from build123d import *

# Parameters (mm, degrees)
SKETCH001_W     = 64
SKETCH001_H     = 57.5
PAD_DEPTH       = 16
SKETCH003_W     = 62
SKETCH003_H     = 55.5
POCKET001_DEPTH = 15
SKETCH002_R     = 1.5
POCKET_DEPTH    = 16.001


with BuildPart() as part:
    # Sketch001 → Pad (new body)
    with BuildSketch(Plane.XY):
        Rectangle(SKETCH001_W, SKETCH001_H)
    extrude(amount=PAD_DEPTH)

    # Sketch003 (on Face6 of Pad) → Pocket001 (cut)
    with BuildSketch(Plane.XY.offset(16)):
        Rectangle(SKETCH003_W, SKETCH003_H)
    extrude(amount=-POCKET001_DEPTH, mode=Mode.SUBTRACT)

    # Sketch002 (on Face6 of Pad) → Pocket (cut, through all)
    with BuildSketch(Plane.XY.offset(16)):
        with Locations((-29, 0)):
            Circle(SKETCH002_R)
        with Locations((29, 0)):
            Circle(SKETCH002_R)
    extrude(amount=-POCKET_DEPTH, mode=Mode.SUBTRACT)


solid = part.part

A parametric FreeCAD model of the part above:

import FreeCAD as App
import Part
import Sketcher
Q = App.Units.Quantity


def add_polygon(sketch, points):
    """Adds a closed chain of lines whose ends are joined by coincident constraints."""
    first, n = sketch.GeometryCount, len(points)
    for a, b in zip(points, points[1:] + points[:1]):
        sketch.addGeometry(Part.LineSegment(App.Vector(*a, 0), App.Vector(*b, 0)), False)
    for i in range(n):
        sketch.addConstraint(Sketcher.Constraint("Coincident", first + i, 2, first + (i + 1) % n, 1))

doc = App.newDocument("Part")
body = doc.addObject("PartDesign::Body", "Body")

# Sketch on XY plane
sketch1 = body.newObject("Sketcher::SketchObject", "Sketch")
sketch1.AttachmentSupport = (doc.getObject("XY_Plane"), [""])
sketch1.MapMode = "FlatFace"
add_polygon(sketch1, [(-32, 29), (-32, -29), (32, -29), (32, 29)])  # lines 0-3
sketch1.addConstraint(Sketcher.Constraint("Vertical", 0))
sketch1.addConstraint(Sketcher.Constraint("Horizontal", 1))
sketch1.addConstraint(Sketcher.Constraint("Vertical", 2))
sketch1.addConstraint(Sketcher.Constraint("Horizontal", 3))
sketch1.addConstraint(Sketcher.Constraint("Symmetric", 0, 2, 2, 2, -1, 1))
sketch1.addConstraint(Sketcher.Constraint("DistanceX", 1, 1, 1, 2, Q("64 mm")))
sketch1.addConstraint(Sketcher.Constraint("DistanceY", 0, 2, 0, 1, Q("57.5 mm")))
pad1 = body.newObject("PartDesign::Pad", "Pad")
pad1.Profile = sketch1
pad1.Length = 16

# Sketch on XY plane
sketch2 = body.newObject("Sketcher::SketchObject", "Sketch001")
sketch2.AttachmentSupport = (doc.getObject("XY_Plane"), [""])
sketch2.MapMode = "FlatFace"
sketch2.AttachmentOffset = App.Placement(App.Vector(0, 0, 16), App.Rotation())
add_polygon(sketch2, [(-31, 28), (-31, -28), (31, -28), (31, 28)])  # lines 0-3
sketch2.addConstraint(Sketcher.Constraint("Vertical", 0))
sketch2.addConstraint(Sketcher.Constraint("Horizontal", 1))
sketch2.addConstraint(Sketcher.Constraint("Vertical", 2))
sketch2.addConstraint(Sketcher.Constraint("Horizontal", 3))
sketch2.addConstraint(Sketcher.Constraint("Symmetric", 0, 2, 2, 2, -1, 1))
sketch2.addConstraint(Sketcher.Constraint("DistanceX", 1, 1, 1, 2, Q("62 mm")))
sketch2.addConstraint(Sketcher.Constraint("DistanceY", 0, 2, 0, 1, Q("55.5 mm")))
pocket1 = body.newObject("PartDesign::Pocket", "Pocket")
pocket1.Profile = sketch2
pocket1.Length = 15

# Sketch on XY plane
sketch3 = body.newObject("Sketcher::SketchObject", "Sketch002")
sketch3.AttachmentSupport = (doc.getObject("XY_Plane"), [""])
sketch3.MapMode = "FlatFace"
sketch3.AttachmentOffset = App.Placement(App.Vector(0, 0, 16), App.Rotation())
sketch3.addGeometry(Part.Circle(App.Vector(-29, 0, 0), App.Vector(0, 0, 1), 1.5), False)
sketch3.addGeometry(Part.Circle(App.Vector(29, 0, 0), App.Vector(0, 0, 1), 1.5), False)
sketch3.addConstraint(Sketcher.Constraint("Equal", 0, 1))
sketch3.addConstraint(Sketcher.Constraint("Symmetric", 0, 3, 1, 3, -1, 1))
sketch3.addConstraint(Sketcher.Constraint("PointOnObject", 0, 3, -1))
sketch3.addConstraint(Sketcher.Constraint("Diameter", 0, Q("3 mm")))
sketch3.addConstraint(Sketcher.Constraint("DistanceX", 0, 3, -1, 1, Q("29 mm")))
pocket2 = body.newObject("PartDesign::Pocket", "Pocket001")
pocket2.Profile = sketch3
pocket2.Type = "ThroughAll"

doc.recompute()
